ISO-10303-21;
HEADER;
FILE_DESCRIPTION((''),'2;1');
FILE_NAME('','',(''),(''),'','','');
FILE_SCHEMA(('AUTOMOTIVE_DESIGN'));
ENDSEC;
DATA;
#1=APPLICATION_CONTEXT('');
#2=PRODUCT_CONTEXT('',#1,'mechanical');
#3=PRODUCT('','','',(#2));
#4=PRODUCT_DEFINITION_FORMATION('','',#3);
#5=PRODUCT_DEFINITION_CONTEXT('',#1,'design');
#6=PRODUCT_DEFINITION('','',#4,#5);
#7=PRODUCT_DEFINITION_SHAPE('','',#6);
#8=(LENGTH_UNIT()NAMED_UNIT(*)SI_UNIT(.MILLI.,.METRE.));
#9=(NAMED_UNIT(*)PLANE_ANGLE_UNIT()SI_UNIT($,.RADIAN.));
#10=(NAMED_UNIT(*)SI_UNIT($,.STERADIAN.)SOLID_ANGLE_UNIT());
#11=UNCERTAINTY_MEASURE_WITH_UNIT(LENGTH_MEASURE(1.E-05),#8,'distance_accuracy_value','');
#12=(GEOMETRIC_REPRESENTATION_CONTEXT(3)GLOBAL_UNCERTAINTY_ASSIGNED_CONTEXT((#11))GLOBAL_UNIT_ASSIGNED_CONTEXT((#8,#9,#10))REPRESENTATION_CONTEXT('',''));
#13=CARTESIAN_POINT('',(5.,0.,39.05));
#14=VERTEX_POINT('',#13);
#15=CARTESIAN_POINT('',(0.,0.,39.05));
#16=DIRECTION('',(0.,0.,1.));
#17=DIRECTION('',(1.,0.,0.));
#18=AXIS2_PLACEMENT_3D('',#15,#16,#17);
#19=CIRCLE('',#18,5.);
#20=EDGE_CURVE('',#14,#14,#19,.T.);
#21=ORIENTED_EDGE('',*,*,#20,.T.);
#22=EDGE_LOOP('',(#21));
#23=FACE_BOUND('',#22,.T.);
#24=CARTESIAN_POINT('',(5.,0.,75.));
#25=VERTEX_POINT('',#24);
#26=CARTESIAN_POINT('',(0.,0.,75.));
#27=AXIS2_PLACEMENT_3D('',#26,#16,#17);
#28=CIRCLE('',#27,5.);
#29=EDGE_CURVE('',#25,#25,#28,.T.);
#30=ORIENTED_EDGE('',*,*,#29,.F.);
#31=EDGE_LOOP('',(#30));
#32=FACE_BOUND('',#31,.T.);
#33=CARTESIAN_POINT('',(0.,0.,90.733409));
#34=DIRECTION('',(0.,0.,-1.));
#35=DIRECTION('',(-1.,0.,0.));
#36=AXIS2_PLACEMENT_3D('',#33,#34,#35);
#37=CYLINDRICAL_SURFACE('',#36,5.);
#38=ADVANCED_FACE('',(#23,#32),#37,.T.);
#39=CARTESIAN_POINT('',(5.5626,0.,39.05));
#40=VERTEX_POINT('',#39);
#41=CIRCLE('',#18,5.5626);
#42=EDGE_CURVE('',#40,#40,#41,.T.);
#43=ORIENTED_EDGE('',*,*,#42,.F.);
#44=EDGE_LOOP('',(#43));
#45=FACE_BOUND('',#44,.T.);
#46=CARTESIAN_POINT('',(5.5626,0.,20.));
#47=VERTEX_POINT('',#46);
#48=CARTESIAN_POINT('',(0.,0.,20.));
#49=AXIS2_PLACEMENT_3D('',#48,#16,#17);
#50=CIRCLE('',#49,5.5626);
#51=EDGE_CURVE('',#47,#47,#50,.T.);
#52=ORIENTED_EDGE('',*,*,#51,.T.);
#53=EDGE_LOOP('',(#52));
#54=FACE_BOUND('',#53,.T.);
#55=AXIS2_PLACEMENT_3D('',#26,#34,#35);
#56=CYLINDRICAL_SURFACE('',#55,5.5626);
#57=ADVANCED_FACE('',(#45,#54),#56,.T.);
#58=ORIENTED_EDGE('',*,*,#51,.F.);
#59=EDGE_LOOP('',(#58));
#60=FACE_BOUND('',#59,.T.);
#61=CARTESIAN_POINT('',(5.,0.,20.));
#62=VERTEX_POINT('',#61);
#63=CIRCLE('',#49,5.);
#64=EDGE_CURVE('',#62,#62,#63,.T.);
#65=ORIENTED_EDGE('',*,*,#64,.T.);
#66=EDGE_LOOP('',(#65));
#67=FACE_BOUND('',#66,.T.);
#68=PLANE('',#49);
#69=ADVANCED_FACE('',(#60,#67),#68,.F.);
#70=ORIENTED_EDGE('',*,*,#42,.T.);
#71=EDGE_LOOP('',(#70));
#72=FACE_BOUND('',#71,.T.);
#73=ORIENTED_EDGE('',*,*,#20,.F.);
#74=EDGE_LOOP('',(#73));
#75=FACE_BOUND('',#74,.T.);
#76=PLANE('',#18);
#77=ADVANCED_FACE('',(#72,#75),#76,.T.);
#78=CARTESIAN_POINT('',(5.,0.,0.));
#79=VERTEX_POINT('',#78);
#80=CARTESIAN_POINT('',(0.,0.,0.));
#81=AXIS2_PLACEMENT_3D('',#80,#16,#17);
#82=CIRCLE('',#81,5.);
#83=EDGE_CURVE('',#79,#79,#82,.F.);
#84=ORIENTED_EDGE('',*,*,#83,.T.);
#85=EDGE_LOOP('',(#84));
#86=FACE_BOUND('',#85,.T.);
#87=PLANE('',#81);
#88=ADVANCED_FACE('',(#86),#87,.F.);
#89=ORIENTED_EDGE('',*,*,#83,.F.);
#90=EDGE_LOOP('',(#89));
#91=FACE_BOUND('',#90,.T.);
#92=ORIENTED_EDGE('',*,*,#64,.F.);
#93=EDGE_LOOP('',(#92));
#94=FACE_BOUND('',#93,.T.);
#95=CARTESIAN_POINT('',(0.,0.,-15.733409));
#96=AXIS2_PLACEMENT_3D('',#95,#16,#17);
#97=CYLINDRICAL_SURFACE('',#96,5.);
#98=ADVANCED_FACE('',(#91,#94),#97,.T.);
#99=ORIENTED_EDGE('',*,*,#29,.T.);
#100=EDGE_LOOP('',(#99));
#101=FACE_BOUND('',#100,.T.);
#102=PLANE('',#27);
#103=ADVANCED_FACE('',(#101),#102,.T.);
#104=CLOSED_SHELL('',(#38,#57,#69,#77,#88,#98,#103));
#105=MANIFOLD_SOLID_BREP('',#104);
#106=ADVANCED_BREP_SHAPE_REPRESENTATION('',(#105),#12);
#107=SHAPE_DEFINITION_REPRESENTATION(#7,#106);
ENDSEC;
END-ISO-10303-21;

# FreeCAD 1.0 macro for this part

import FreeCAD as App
import Part
import Sketcher

doc = App.newDocument("Part")
params = doc.addObject("Spreadsheet::Sheet", "Params")
for row, (alias, value) in enumerate([
    ("pad1_length", "75 mm"),
    ("sketch2_diameter", "10 mm"),
    ("pocket1_length", "20 mm"),
    ("sketch3_diameter", "10 mm"),
    ("pocket2_length", "35.95 mm"),
], start=1):
    params.set(f"A{row}", alias)
    params.set(f"B{row}", "=" + value)
    params.setAlias(f"B{row}", alias)

body = doc.addObject("PartDesign::Body", "Body")

# Sketch on XY plane
sketch1 = doc.addObject("Sketcher::SketchObject", "Sketch")
body.addObject(sketch1)
sketch1.AttachmentSupport = (doc.XY_Plane, [""])
sketch1.MapMode = "FlatFace"
sketch1.addGeometry(Part.Circle(App.Vector(0, 0, 0), App.Vector(0, 0, 1), 6), False)
sketch1.addConstraint([
    Sketcher.Constraint("Coincident", 0, 3, -1, 1),
    Sketcher.Constraint("Diameter", 0, 11.1252),
])
pad1 = doc.addObject("PartDesign::Pad", "Pad")
body.addObject(pad1)
pad1.Profile = sketch1
pad1.setExpression("Length", "Params.pad1_length")

# Sketch on XY plane
sketch2 = doc.addObject("Sketcher::SketchObject", "Sketch001")
body.addObject(sketch2)
sketch2.AttachmentSupport = (doc.XY_Plane, [""])
sketch2.MapMode = "FlatFace"
sketch2.AttachmentOffset = App.Placement(App.Vector(0, 0, 20), App.Rotation())
sketch2.addGeometry([
    Part.Circle(App.Vector(0, 0, 0), App.Vector(0, 0, 1), 6),
    Part.Circle(App.Vector(0, 0, 0), App.Vector(0, 0, 1), 5),
], False)
sketch2.addConstraint([
    Sketcher.Constraint("Coincident", 0, 3, -1, 1),
    Sketcher.Constraint("Coincident", 1, 3, -1, 1),
    Sketcher.Constraint("Diameter", 1, 10.0),
    Sketcher.Constraint("Diameter", 0, 11.1252),
])
sketch2.setExpression("Constraints[2]", "Params.sketch2_diameter")
pocket1 = doc.addObject("PartDesign::Pocket", "Pocket")
body.addObject(pocket1)
pocket1.Profile = sketch2
pocket1.setExpression("Length", "Params.pocket1_length")

# Sketch on XY plane
sketch3 = doc.addObject("Sketcher::SketchObject", "Sketch002")
body.addObject(sketch3)
sketch3.AttachmentSupport = (doc.XY_Plane, [""])
sketch3.MapMode = "FlatFace"
sketch3.AttachmentOffset = App.Placement(App.Vector(0, 0, 39.05), App.Rotation())
sketch3.addGeometry([
    Part.Circle(App.Vector(0, 0, 0), App.Vector(0, 0, 1), 6),
    Part.Circle(App.Vector(0, 0, 0), App.Vector(0, 0, 1), 5),
], False)
sketch3.addConstraint([
    Sketcher.Constraint("Coincident", 0, 3, -1, 1),
    Sketcher.Constraint("Coincident", 1, 3, -1, 1),
    Sketcher.Constraint("Diameter", 1, 10.0),
    Sketcher.Constraint("Diameter", 0, 11.1252),
])
sketch3.setExpression("Constraints[2]", "Params.sketch3_diameter")
pocket2 = doc.addObject("PartDesign::Pocket", "Pocket001")
body.addObject(pocket2)
pocket2.Profile = sketch3
pocket2.setExpression("Length", "Params.pocket2_length")
pocket2.Reversed = True

doc.recompute()
